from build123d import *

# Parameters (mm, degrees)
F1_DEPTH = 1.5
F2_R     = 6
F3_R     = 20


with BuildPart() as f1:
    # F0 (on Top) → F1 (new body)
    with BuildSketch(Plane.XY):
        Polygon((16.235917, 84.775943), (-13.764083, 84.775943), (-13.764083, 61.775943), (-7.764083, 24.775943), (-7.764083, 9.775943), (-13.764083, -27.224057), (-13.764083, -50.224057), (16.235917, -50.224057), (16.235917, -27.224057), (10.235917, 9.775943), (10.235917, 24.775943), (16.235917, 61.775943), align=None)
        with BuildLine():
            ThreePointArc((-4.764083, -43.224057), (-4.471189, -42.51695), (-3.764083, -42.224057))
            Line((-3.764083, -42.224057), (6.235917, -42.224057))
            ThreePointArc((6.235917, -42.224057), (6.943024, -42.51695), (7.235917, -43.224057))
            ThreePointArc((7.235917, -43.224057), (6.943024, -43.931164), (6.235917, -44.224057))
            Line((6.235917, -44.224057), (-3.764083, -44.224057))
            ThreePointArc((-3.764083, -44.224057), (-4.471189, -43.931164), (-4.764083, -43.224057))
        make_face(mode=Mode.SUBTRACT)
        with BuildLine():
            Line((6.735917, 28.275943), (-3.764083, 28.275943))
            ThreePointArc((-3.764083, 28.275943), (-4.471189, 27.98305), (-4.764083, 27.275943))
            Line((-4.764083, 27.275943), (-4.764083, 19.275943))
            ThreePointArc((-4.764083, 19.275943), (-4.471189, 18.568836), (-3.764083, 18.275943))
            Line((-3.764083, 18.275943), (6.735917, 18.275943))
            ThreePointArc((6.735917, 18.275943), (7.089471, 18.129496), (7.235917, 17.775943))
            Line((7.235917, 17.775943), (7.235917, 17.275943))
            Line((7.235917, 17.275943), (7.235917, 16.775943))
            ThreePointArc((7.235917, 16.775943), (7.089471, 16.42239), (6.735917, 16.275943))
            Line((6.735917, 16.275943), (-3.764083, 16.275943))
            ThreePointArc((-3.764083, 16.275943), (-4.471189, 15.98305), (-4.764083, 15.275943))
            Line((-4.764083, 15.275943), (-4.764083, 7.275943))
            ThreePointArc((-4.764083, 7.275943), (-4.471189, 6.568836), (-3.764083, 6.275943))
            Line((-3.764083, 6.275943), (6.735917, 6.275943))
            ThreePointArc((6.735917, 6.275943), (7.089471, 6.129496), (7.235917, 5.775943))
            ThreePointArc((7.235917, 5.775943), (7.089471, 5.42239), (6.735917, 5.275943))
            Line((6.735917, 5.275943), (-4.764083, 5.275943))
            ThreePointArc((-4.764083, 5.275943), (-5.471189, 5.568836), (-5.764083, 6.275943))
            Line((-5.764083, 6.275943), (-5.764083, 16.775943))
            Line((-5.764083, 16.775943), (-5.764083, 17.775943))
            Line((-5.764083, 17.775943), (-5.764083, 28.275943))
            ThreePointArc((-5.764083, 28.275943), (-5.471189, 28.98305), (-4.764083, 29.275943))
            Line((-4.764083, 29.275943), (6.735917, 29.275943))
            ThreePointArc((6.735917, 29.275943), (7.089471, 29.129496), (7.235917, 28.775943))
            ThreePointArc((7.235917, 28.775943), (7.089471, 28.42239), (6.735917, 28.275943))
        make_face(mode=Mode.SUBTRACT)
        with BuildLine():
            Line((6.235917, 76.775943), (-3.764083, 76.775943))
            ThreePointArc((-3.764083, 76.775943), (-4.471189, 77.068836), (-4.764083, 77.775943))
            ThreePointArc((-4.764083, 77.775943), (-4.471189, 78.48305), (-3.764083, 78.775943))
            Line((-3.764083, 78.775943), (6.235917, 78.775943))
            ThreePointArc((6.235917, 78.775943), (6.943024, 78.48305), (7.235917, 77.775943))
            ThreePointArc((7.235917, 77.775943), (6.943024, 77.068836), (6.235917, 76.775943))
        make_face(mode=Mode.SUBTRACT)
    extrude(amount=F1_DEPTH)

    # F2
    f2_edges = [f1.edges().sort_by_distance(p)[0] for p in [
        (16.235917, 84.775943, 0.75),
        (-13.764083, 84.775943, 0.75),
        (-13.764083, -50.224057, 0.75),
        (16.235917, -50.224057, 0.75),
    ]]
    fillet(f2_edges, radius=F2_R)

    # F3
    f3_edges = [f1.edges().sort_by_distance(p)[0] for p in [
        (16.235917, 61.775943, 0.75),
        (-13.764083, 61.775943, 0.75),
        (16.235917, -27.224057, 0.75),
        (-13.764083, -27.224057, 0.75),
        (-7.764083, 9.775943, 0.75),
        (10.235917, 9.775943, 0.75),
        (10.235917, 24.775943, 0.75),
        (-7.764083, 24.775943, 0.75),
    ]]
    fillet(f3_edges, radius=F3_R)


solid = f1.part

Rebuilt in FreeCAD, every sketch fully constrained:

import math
import FreeCAD as App
import Part
import Sketcher

V = App.Vector


def edges_at(feature, points):
    """Names of the edges that pass closest to the given points."""
    edges = feature.Shape.Edges
    near = lambda p: min(range(len(edges)), key=lambda i: edges[i].distToShape(Part.Vertex(*p))[0])
    return sorted({f"Edge{near(p) + 1}" for p in points})

doc = App.newDocument("Part")
body = doc.addObject("PartDesign::Body", "Body")

# Sketch on XY plane
sketch1 = body.newObject("Sketcher::SketchObject", "Sketch")
sketch1.AttachmentSupport = (doc.getObject("XY_Plane"), [""])
sketch1.MapMode = "FlatFace"
sketch1.addGeometry([
    Part.LineSegment(V(16.24, 84.78, 0), V(-13.76, 84.78, 0)),  # 0
    Part.LineSegment(V(-13.76, 84.78, 0), V(-13.76, 61.78, 0)),  # 1
    Part.LineSegment(V(-13.76, 61.78, 0), V(-7.76, 24.78, 0)),  # 2
    Part.LineSegment(V(-7.76, 24.78, 0), V(-7.76, 9.78, 0)),  # 3
    Part.LineSegment(V(-7.76, 9.78, 0), V(-13.76, -27.22, 0)),  # 4
    Part.LineSegment(V(-13.76, -27.22, 0), V(-13.76, -50.22, 0)),  # 5
    Part.LineSegment(V(-13.76, -50.22, 0), V(16.24, -50.22, 0)),  # 6
    Part.LineSegment(V(16.24, -50.22, 0), V(16.24, -27.22, 0)),  # 7
    Part.LineSegment(V(16.24, -27.22, 0), V(10.24, 9.78, 0)),  # 8
    Part.LineSegment(V(10.24, 9.78, 0), V(10.24, 24.78, 0)),  # 9
    Part.LineSegment(V(10.24, 24.78, 0), V(16.24, 61.78, 0)),  # 10
    Part.LineSegment(V(16.24, 61.78, 0), V(16.24, 84.78, 0)),  # 11
    Part.ArcOfCircle(Part.Circle(V(-3.76, -43.22, 0), V(0, 0, 1), 1), math.radians(-180), math.radians(-90)),  # 12
    Part.ArcOfCircle(Part.Circle(V(-3.76, -43.22, 0), V(0, 0, 1), 1), math.radians(90), math.radians(180)),  # 13
    Part.LineSegment(V(-3.76, -42.22, 0), V(6.24, -42.22, 0)),  # 14
    Part.ArcOfCircle(Part.Circle(V(6.24, -43.22, 0), V(0, 0, 1), 1), math.radians(0), math.radians(90)),  # 15
    Part.ArcOfCircle(Part.Circle(V(6.24, -43.22, 0), V(0, 0, 1), 1), math.radians(-90), math.radians(0)),  # 16
    Part.LineSegment(V(6.24, -44.22, 0), V(-3.76, -44.22, 0)),  # 17
    Part.ArcOfCircle(Part.Circle(V(6.74, 28.78, 0), V(0, 0, 1), 0.5), math.radians(-90), math.radians(0)),  # 18
    Part.LineSegment(V(6.74, 28.28, 0), V(-3.76, 28.28, 0)),  # 19
    Part.ArcOfCircle(Part.Circle(V(-3.76, 27.28, 0), V(0, 0, 1), 1), math.radians(90), math.radians(180)),  # 20
    Part.LineSegment(V(-4.76, 27.28, 0), V(-4.76, 19.28, 0)),  # 21
    Part.ArcOfCircle(Part.Circle(V(-3.76, 19.28, 0), V(0, 0, 1), 1), math.radians(-180), math.radians(-90)),  # 22
    Part.LineSegment(V(-3.76, 18.28, 0), V(6.74, 18.28, 0)),  # 23
    Part.ArcOfCircle(Part.Circle(V(6.74, 17.78, 0), V(0, 0, 1), 0.5), math.radians(0), math.radians(90)),  # 24
    Part.LineSegment(V(7.24, 17.78, 0), V(7.24, 16.78, 0)),  # 25
    Part.ArcOfCircle(Part.Circle(V(6.74, 16.78, 0), V(0, 0, 1), 0.5), math.radians(-90), math.radians(0)),  # 26
    Part.LineSegment(V(6.74, 16.28, 0), V(-3.76, 16.28, 0)),  # 27
    Part.ArcOfCircle(Part.Circle(V(-3.76, 15.28, 0), V(0, 0, 1), 1), math.radians(90), math.radians(180)),  # 28
    Part.LineSegment(V(-4.76, 15.28, 0), V(-4.76, 7.28, 0)),  # 29
    Part.ArcOfCircle(Part.Circle(V(-3.76, 7.28, 0), V(0, 0, 1), 1), math.radians(-180), math.radians(-90)),  # 30
    Part.LineSegment(V(-3.76, 6.28, 0), V(6.74, 6.28, 0)),  # 31
    Part.ArcOfCircle(Part.Circle(V(6.74, 5.78, 0), V(0, 0, 1), 0.5), math.radians(0), math.radians(90)),  # 32
    Part.ArcOfCircle(Part.Circle(V(6.74, 5.78, 0), V(0, 0, 1), 0.5), math.radians(-90), math.radians(0)),  # 33
    Part.LineSegment(V(6.74, 5.28, 0), V(-4.76, 5.28, 0)),  # 34
    Part.ArcOfCircle(Part.Circle(V(-4.76, 6.28, 0), V(0, 0, 1), 1), math.radians(-180), math.radians(-90)),  # 35
    Part.LineSegment(V(-5.76, 6.28, 0), V(-5.76, 28.28, 0)),  # 36
    Part.ArcOfCircle(Part.Circle(V(-4.76, 28.28, 0), V(0, 0, 1), 1), math.radians(90), math.radians(180)),  # 37
    Part.LineSegment(V(-4.76, 29.28, 0), V(6.74, 29.28, 0)),  # 38
    Part.ArcOfCircle(Part.Circle(V(6.74, 28.78, 0), V(0, 0, 1), 0.5), math.radians(0), math.radians(90)),  # 39
    Part.ArcOfCircle(Part.Circle(V(6.24, 77.78, 0), V(0, 0, 1), 1), math.radians(-90), math.radians(0)),  # 40
    Part.LineSegment(V(6.24, 76.78, 0), V(-3.76, 76.78, 0)),  # 41
    Part.ArcOfCircle(Part.Circle(V(-3.76, 77.78, 0), V(0, 0, 1), 1), math.radians(-180), math.radians(-90)),  # 42
    Part.ArcOfCircle(Part.Circle(V(-3.76, 77.78, 0), V(0, 0, 1), 1), math.radians(90), math.radians(180)),  # 43
    Part.LineSegment(V(-3.76, 78.78, 0), V(6.24, 78.78, 0)),  # 44
    Part.ArcOfCircle(Part.Circle(V(6.24, 77.78, 0), V(0, 0, 1), 1), math.radians(0), math.radians(90)),  # 45
], False)
sketch1.addConstraint([
    Sketcher.Constraint("Coincident", 0, 2, 1, 1),
    Sketcher.Constraint("Coincident", 1, 2, 2, 1),
    Sketcher.Constraint("Coincident", 2, 2, 3, 1),
    Sketcher.Constraint("Coincident", 3, 2, 4, 1),
    Sketcher.Constraint("Coincident", 4, 2, 5, 1),
    Sketcher.Constraint("Coincident", 5, 2, 6, 1),
    Sketcher.Constraint("Coincident", 6, 2, 7, 1),
    Sketcher.Constraint("Coincident", 7, 2, 8, 1),
    Sketcher.Constraint("Coincident", 8, 2, 9, 1),
    Sketcher.Constraint("Coincident", 9, 2, 10, 1),
    Sketcher.Constraint("Coincident", 10, 2, 11, 1),
    Sketcher.Constraint("Coincident", 11, 2, 0, 1),
    Sketcher.Constraint("Tangent", 12, 1, 13, 2),
    Sketcher.Constraint("Tangent", 13, 1, 14, 1),
    Sketcher.Constraint("Tangent", 14, 2, 15, 2),
    Sketcher.Constraint("Tangent", 15, 1, 16, 2),
    Sketcher.Constraint("Tangent", 16, 1, 17, 1),
    Sketcher.Constraint("Tangent", 17, 2, 12, 2),
    Sketcher.Constraint("Tangent", 18, 1, 19, 1),
    Sketcher.Constraint("Tangent", 19, 2, 20, 1),
    Sketcher.Constraint("Tangent", 20, 2, 21, 1),
    Sketcher.Constraint("Tangent", 21, 2, 22, 1),
    Sketcher.Constraint("Tangent", 22, 2, 23, 1),
    Sketcher.Constraint("Tangent", 23, 2, 24, 2),
    Sketcher.Constraint("Tangent", 24, 1, 25, 1),
    Sketcher.Constraint("Tangent", 25, 2, 26, 2),
    Sketcher.Constraint("Tangent", 26, 1, 27, 1),
    Sketcher.Constraint("Tangent", 27, 2, 28, 1),
    Sketcher.Constraint("Tangent", 28, 2, 29, 1),
    Sketcher.Constraint("Tangent", 29, 2, 30, 1),
    Sketcher.Constraint("Tangent", 30, 2, 31, 1),
    Sketcher.Constraint("Tangent", 31, 2, 32, 2),
    Sketcher.Constraint("Tangent", 32, 1, 33, 2),
    Sketcher.Constraint("Tangent", 33, 1, 34, 1),
    Sketcher.Constraint("Tangent", 34, 2, 35, 2),
    Sketcher.Constraint("Tangent", 35, 1, 36, 1),
    Sketcher.Constraint("Tangent", 36, 2, 37, 2),
    Sketcher.Constraint("Tangent", 37, 1, 38, 1),
    Sketcher.Constraint("Tangent", 38, 2, 39, 2),
    Sketcher.Constraint("Tangent", 39, 1, 18, 2),
    Sketcher.Constraint("Tangent", 40, 1, 41, 1),
    Sketcher.Constraint("Tangent", 41, 2, 42, 2),
    Sketcher.Constraint("Tangent", 42, 1, 43, 2),
    Sketcher.Constraint("Tangent", 43, 1, 44, 1),
    Sketcher.Constraint("Tangent", 44, 2, 45, 2),
    Sketcher.Constraint("Tangent", 45, 1, 40, 2),
    Sketcher.Constraint("Horizontal", 0),
    Sketcher.Constraint("Vertical", 1),
    Sketcher.Constraint("Vertical", 3),
    Sketcher.Constraint("Vertical", 5),
    Sketcher.Constraint("Horizontal", 6),
    Sketcher.Constraint("Vertical", 7),
    Sketcher.Constraint("Vertical", 9),
    Sketcher.Constraint("Vertical", 11),
    Sketcher.Constraint("Horizontal", 14),
    Sketcher.Constraint("Horizontal", 17),
    Sketcher.Constraint("Horizontal", 19),
    Sketcher.Constraint("Vertical", 21),
    Sketcher.Constraint("Horizontal", 23),
    Sketcher.Constraint("Vertical", 25),
    Sketcher.Constraint("Horizontal", 27),
    Sketcher.Constraint("Vertical", 29),
    Sketcher.Constraint("Horizontal", 31),
    Sketcher.Constraint("Horizontal", 34),
    Sketcher.Constraint("Vertical", 36),
    Sketcher.Constraint("Horizontal", 38),
    Sketcher.Constraint("Horizontal", 41),
    Sketcher.Constraint("Horizontal", 44),
    Sketcher.Constraint("Equal", 12, 13),
    Sketcher.Constraint("Equal", 13, 15),
    Sketcher.Constraint("Equal", 16, 20),
    Sketcher.Constraint("Equal", 20, 22),
    Sketcher.Constraint("Equal", 18, 24),
    Sketcher.Constraint("Equal", 24, 26),
    Sketcher.Constraint("Equal", 22, 28),
    Sketcher.Constraint("Equal", 28, 30),
    Sketcher.Constraint("Equal", 26, 32),
    Sketcher.Constraint("Equal", 32, 33),
    Sketcher.Constraint("Equal", 30, 35),
    Sketcher.Constraint("Equal", 35, 37),
    Sketcher.Constraint("Equal", 33, 39),
    Sketcher.Constraint("Equal", 37, 40),
    Sketcher.Constraint("Equal", 40, 42),
    Sketcher.Constraint("Equal", 42, 43),
    Sketcher.Constraint("Parallel", 2, 8),
    Sketcher.Constraint("Parallel", 4, 10),
    Sketcher.Constraint("Horizontal", 4, 2, 7, 2),
    Sketcher.Constraint("Horizontal", 3, 2, 8, 2),
    Sketcher.Constraint("Horizontal", 2, 2, 9, 2),
    Sketcher.Constraint("Horizontal", 1, 2, 10, 2),
    Sketcher.Constraint("Horizontal", 16, 3, 12, 1),
    Sketcher.Constraint("Horizontal", 12, 1, 15, 1),
    Sketcher.Constraint("Horizontal", 37, 3, 18, 1),
    Sketcher.Constraint("Horizontal", 33, 3, 32, 1),
    Sketcher.Constraint("Horizontal", 18, 3, 39, 1),
    Sketcher.Constraint("Horizontal", 45, 3, 42, 1),
    Sketcher.Constraint("Horizontal", 42, 1, 45, 1),
    Sketcher.Constraint("Vertical", 13, 3, 20, 3),
    Sketcher.Constraint("Vertical", 18, 3, 24, 3),
    Sketcher.Constraint("Vertical", 22, 3, 28, 3),
    Sketcher.Constraint("Vertical", 26, 3, 32, 3),
    Sketcher.Constraint("Vertical", 16, 3, 40, 3),
    Sketcher.Constraint("Vertical", 30, 3, 42, 3),
    Sketcher.Constraint("Vertical", 1, 2, 4, 2),
    Sketcher.Constraint("Vertical", 7, 2, 10, 2),
    Sketcher.Constraint("Vertical", 37, 3, 12, 1),
    Sketcher.Constraint("Vertical", 15, 1, 24, 1),
    Sketcher.Constraint("Equal", 1, 5),
    Sketcher.Constraint("Equal", 21, 29),
    Sketcher.Constraint("Radius", 12, 1.000001),
    Sketcher.Constraint("DistanceX", 0, 2, 0, 1, 30.0),
    Sketcher.Constraint("DistanceX", 14, 1, 14, 2, 10.0),
    Sketcher.Constraint("DistanceY", 1, 2, 1, 1, 23.0),
    Sketcher.Constraint("DistanceY", 3, 2, 3, 1, 15.0),
    Sketcher.Constraint("DistanceY", 21, 2, 21, 1, 8.0),
    Sketcher.Constraint("DistanceY", 25, 2, 25, 1, 1.0),
    Sketcher.Constraint("Distance", 2, 37.48333),
    Sketcher.Constraint("DistanceX", 12, 3, -1, 1, 3.764082),
    Sketcher.Constraint("DistanceY", 12, 3, -1, 1, 43.224056),
    Sketcher.Constraint("DistanceY", -1, 1, 18, 3, 28.775943),
    Sketcher.Constraint("DistanceY", -1, 1, 40, 3, 77.775942),
    Sketcher.Constraint("DistanceX", 0, 2, -1, 1, 13.764083),
    Sketcher.Constraint("DistanceY", -1, 1, 0, 2, 84.775943),
    Sketcher.Constraint("DistanceX", 2, 2, -1, 1, 7.764083),
])
pad1 = body.newObject("PartDesign::Pad", "Pad")
pad1.Profile = sketch1
pad1.Length = 1.5
doc.recompute()

fillet = body.newObject("PartDesign::Fillet", "Fillet")
fillet.Base = (pad1, edges_at(pad1, [
    (16.236, 84.776, 0.75),
    (-13.764, 84.776, 0.75),
    (-13.764, -50.224, 0.75),
    (16.236, -50.224, 0.75),
]))
fillet.Radius = 6
doc.recompute()

fillet2 = body.newObject("PartDesign::Fillet", "Fillet001")
fillet2.Base = (fillet, edges_at(fillet, [
    (16.236, 61.776, 0.75),
    (-13.764, 61.776, 0.75),
    (16.236, -27.224, 0.75),
    (-13.764, -27.224, 0.75),
    (-7.764, 9.776, 0.75),
    (10.236, 9.776, 0.75),
    (10.236, 24.776, 0.75),
    (-7.764, 24.776, 0.75),
]))
fillet2.Radius = 20

doc.recompute()
